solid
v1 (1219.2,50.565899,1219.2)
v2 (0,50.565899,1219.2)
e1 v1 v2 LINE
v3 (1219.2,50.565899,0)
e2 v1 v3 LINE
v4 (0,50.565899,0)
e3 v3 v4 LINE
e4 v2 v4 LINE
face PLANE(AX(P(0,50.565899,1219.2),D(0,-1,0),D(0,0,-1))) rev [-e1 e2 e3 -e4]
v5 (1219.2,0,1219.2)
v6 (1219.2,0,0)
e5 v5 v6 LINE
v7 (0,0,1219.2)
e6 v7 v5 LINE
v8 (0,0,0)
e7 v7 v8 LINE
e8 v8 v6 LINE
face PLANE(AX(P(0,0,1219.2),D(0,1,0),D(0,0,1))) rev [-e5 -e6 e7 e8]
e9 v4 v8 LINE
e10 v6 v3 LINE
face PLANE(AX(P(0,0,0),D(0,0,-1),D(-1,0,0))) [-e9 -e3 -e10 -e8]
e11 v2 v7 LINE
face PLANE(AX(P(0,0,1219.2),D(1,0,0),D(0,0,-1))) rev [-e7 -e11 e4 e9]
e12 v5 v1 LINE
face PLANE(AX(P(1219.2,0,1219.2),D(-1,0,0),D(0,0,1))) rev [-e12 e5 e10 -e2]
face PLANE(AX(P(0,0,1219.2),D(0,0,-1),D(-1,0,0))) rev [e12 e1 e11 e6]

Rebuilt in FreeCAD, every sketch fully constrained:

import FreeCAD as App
import Part
import Sketcher

V = App.Vector
Q = App.Units.Quantity


def add_polygon(sketch, points):
    """Adds a closed chain of lines whose ends are joined by coincident constraints."""
    first, n = sketch.GeometryCount, len(points)
    for a, b in zip(points, points[1:] + points[:1]):
        sketch.addGeometry(Part.LineSegment(App.Vector(*a, 0), App.Vector(*b, 0)), False)
    for i in range(n):
        sketch.addConstraint(Sketcher.Constraint("Coincident", first + i, 2, first + (i + 1) % n, 1))

doc = App.newDocument("Part")
body = doc.addObject("PartDesign::Body", "Body")

# Sketch on XY plane
sketch1 = body.newObject("Sketcher::SketchObject", "Sketch")
sketch1.AttachmentSupport = (doc.getObject("XY_Plane"), [""])
sketch1.MapMode = "FlatFace"
add_polygon(sketch1, [(0, 51), (0, 0), (1219, 0), (1219, 51)])  # lines 0-3
sketch1.addConstraint([
    Sketcher.Constraint("Vertical", 0),
    Sketcher.Constraint("Horizontal", 1),
    Sketcher.Constraint("Vertical", 2),
    Sketcher.Constraint("Horizontal", 3),
    Sketcher.Constraint("Coincident", 0, 2, -1, 1),
    Sketcher.Constraint("DistanceX", 1, 1, 1, 2, Q("48 in")),
    Sketcher.Constraint("DistanceY", 0, 2, 0, 1, Q("50.565899 mm")),
])
pad1 = body.newObject("PartDesign::Pad", "Pad")
pad1.Profile = sketch1
pad1.Length = Q("48 in")

doc.recompute()
